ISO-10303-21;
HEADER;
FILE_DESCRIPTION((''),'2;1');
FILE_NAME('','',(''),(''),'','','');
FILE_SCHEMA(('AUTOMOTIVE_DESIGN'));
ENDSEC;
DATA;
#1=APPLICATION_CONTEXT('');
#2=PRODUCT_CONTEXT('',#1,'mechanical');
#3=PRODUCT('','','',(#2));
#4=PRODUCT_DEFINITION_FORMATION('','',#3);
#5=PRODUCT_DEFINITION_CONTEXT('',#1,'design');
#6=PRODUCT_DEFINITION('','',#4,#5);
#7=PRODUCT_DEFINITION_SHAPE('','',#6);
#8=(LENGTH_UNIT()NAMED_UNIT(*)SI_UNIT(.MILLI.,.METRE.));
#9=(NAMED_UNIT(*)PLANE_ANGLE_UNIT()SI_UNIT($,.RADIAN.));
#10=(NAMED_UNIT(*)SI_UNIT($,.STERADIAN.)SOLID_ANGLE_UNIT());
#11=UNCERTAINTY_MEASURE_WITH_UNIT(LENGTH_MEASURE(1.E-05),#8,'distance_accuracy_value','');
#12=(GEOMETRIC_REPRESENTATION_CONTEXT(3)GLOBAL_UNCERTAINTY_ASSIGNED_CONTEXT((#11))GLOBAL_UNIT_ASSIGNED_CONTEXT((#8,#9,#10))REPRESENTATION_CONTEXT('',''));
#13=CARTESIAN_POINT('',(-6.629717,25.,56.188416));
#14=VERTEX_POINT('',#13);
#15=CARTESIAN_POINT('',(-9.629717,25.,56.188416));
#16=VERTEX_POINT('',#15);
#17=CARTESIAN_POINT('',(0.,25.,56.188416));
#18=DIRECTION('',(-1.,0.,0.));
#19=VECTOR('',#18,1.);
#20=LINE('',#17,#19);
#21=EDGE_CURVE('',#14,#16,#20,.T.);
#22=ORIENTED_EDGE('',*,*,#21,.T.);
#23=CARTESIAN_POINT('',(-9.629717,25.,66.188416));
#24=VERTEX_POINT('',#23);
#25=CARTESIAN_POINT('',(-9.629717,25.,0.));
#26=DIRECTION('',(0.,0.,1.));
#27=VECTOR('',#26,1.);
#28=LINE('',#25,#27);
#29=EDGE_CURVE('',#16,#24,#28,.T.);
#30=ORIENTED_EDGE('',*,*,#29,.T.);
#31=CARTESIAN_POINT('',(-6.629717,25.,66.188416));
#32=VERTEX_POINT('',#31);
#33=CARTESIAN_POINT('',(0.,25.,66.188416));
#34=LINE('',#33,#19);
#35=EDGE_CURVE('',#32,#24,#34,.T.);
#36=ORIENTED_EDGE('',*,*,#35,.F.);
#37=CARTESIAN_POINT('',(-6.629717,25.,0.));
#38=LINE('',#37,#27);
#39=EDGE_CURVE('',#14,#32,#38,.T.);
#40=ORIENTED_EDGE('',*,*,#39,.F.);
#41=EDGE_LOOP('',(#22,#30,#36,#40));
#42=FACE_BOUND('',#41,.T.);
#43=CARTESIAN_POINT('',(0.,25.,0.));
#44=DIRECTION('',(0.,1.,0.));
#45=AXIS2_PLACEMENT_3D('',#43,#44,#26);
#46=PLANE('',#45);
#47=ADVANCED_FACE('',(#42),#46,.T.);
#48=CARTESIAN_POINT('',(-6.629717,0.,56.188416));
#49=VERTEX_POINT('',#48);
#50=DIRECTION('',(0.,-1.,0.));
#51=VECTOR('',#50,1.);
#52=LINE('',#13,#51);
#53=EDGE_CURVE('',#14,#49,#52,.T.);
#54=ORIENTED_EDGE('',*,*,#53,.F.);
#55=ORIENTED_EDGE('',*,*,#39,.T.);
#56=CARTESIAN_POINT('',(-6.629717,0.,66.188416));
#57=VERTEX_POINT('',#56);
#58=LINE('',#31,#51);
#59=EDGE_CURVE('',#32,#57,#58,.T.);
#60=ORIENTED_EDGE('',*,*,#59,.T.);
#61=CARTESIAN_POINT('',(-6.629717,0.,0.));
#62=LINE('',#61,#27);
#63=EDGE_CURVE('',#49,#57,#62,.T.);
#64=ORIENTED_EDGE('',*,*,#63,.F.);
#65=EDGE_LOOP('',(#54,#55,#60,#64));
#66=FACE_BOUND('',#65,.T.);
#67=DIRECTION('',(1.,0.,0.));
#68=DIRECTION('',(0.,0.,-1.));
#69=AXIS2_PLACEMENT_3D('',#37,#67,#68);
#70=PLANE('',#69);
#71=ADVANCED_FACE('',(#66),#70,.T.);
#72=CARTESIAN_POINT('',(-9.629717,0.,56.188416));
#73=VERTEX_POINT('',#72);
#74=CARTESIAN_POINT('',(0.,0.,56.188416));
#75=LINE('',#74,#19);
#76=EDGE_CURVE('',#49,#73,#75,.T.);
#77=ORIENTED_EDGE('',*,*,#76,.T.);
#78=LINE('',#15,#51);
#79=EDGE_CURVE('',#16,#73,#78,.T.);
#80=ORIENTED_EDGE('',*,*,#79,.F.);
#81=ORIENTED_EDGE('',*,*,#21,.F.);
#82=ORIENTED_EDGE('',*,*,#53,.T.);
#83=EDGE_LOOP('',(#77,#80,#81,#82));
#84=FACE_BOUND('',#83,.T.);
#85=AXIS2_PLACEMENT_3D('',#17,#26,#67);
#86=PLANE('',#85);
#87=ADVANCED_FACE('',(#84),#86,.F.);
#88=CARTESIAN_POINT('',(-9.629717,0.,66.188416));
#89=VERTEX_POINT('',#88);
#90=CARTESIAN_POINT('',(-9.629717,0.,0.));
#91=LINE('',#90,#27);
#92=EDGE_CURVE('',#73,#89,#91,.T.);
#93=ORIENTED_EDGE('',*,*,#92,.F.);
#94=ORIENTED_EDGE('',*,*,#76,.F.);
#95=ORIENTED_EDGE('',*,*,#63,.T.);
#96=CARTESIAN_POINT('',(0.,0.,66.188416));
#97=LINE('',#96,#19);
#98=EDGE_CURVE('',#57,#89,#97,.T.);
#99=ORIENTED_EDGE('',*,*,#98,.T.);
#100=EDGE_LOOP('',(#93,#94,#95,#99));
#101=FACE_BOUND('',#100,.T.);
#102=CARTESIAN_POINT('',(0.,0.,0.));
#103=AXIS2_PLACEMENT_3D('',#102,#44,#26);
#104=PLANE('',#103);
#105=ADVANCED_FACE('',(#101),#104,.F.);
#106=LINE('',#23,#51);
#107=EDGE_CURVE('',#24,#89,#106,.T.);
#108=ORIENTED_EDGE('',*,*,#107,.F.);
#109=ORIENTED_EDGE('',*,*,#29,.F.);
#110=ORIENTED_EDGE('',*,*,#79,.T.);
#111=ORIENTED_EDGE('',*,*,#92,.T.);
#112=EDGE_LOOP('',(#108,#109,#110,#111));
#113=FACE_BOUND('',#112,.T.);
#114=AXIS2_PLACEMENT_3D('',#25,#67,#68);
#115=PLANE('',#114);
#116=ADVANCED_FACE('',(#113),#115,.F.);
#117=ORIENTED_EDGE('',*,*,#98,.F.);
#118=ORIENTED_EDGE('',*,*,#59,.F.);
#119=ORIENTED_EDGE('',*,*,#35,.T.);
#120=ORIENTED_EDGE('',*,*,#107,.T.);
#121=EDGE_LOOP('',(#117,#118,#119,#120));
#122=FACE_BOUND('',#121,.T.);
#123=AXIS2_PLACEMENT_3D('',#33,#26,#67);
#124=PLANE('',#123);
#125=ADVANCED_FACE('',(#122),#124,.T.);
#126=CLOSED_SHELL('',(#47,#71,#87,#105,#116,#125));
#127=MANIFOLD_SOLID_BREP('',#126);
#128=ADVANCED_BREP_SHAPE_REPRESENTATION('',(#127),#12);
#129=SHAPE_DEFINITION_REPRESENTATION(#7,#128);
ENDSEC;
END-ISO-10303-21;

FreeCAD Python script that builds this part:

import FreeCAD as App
import Part
import Sketcher
Q = App.Units.Quantity

doc = App.newDocument("Part")
body = doc.addObject("PartDesign::Body", "Body")

# Sketch on XZ plane
sketch1 = doc.addObject("Sketcher::SketchObject", "Sketch")
body.addObject(sketch1)
sketch1.AttachmentSupport = (doc.XZ_Plane, [""])
sketch1.MapMode = "FlatFace"
sketch1.addGeometry(Part.LineSegment(App.Vector(-9.6, 56.2, 0), App.Vector(-9.6, 66.2, 0)), False)
sketch1.addGeometry(Part.LineSegment(App.Vector(-9.6, 66.2, 0), App.Vector(-6.6, 66.2, 0)), False)
sketch1.addGeometry(Part.LineSegment(App.Vector(-6.6, 66.2, 0), App.Vector(-6.6, 56.2, 0)), False)
sketch1.addGeometry(Part.LineSegment(App.Vector(-6.6, 56.2, 0), App.Vector(-9.6, 56.2, 0)), False)
sketch1.addConstraint(Sketcher.Constraint("Coincident", 0, 2, 1, 1))
sketch1.addConstraint(Sketcher.Constraint("Coincident", 1, 2, 2, 1))
sketch1.addConstraint(Sketcher.Constraint("Coincident", 2, 2, 3, 1))
sketch1.addConstraint(Sketcher.Constraint("Coincident", 3, 2, 0, 1))
sketch1.addConstraint(Sketcher.Constraint("Vertical", 0))
sketch1.addConstraint(Sketcher.Constraint("Horizontal", 1))
sketch1.addConstraint(Sketcher.Constraint("Vertical", 2))
sketch1.addConstraint(Sketcher.Constraint("Horizontal", 3))
sketch1.addConstraint(Sketcher.Constraint("DistanceX", 1, 1, 1, 2, Q("3 mm")))
sketch1.addConstraint(Sketcher.Constraint("DistanceY", 0, 1, 0, 2, Q("10 mm")))
sketch1.addConstraint(Sketcher.Constraint("DistanceX", 0, 2, -1, 1, Q("9.629717 mm")))
sketch1.addConstraint(Sketcher.Constraint("DistanceY", -1, 1, 0, 2, Q("66.188416 mm")))
pad1 = doc.addObject("PartDesign::Pad", "Pad")
body.addObject(pad1)
pad1.Profile = sketch1
pad1.Length = 25
pad1.Reversed = True

doc.recompute()
